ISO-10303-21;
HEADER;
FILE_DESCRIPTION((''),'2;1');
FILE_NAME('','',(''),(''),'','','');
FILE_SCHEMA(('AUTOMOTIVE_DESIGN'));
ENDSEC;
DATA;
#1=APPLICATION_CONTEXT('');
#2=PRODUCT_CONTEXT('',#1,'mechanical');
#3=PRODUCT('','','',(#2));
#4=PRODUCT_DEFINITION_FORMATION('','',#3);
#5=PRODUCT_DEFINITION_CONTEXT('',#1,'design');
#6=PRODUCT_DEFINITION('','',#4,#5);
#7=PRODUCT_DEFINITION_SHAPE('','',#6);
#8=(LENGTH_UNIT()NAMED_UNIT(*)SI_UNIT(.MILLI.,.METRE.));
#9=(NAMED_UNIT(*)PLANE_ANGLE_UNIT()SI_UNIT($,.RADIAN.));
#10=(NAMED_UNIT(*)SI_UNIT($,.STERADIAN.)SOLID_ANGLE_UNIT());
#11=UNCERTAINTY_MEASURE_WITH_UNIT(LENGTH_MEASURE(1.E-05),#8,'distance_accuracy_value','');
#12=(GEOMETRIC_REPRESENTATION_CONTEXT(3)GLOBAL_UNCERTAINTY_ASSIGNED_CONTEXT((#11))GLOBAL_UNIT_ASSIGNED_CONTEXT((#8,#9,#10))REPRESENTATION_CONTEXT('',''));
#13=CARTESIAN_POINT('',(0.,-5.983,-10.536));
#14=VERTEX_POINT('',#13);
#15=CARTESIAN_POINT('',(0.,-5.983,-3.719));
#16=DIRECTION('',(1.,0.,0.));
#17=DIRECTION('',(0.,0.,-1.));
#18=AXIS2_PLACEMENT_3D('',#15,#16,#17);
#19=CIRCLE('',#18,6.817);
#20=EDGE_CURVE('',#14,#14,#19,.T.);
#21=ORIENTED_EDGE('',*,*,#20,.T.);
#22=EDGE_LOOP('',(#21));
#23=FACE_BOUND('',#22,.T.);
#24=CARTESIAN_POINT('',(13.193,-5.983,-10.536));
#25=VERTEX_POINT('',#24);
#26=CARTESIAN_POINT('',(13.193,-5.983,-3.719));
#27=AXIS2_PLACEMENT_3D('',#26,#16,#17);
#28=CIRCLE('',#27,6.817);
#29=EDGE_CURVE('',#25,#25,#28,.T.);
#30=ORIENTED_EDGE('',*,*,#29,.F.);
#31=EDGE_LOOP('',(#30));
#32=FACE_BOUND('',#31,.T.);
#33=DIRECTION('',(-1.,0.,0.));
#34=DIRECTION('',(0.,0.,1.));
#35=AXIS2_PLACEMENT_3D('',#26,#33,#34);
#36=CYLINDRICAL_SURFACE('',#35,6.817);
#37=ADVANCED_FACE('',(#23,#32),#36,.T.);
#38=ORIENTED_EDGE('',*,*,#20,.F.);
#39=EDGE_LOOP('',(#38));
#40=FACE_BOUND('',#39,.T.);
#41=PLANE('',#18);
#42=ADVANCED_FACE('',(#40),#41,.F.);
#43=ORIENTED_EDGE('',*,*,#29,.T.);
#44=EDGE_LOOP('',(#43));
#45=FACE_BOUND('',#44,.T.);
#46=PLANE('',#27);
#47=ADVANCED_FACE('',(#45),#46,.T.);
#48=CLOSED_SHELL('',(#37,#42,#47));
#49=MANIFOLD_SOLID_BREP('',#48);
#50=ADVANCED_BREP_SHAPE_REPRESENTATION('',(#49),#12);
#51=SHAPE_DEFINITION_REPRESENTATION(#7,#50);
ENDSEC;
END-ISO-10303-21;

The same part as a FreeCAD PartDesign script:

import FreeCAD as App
import Part
import Sketcher

V = App.Vector

doc = App.newDocument("Part")
body = doc.addObject("PartDesign::Body", "Body")

# Sketch on YZ plane
sketch1 = body.newObject("Sketcher::SketchObject", "Sketch")
sketch1.AttachmentSupport = (doc.getObject("YZ_Plane"), [""])
sketch1.MapMode = "FlatFace"
sketch1.addGeometry(Part.Circle(V(-6, -4, 0), V(0, 0, 1), 7), False)
sketch1.addConstraint([
    Sketcher.Constraint("Diameter", 0, 13.634),
    Sketcher.Constraint("DistanceX", 0, 3, -1, 1, 5.983),
    Sketcher.Constraint("DistanceY", 0, 3, -1, 1, 3.719),
])
pad1 = body.newObject("PartDesign::Pad", "Pad")
pad1.Profile = sketch1
pad1.Length = 13.193

doc.recompute()
